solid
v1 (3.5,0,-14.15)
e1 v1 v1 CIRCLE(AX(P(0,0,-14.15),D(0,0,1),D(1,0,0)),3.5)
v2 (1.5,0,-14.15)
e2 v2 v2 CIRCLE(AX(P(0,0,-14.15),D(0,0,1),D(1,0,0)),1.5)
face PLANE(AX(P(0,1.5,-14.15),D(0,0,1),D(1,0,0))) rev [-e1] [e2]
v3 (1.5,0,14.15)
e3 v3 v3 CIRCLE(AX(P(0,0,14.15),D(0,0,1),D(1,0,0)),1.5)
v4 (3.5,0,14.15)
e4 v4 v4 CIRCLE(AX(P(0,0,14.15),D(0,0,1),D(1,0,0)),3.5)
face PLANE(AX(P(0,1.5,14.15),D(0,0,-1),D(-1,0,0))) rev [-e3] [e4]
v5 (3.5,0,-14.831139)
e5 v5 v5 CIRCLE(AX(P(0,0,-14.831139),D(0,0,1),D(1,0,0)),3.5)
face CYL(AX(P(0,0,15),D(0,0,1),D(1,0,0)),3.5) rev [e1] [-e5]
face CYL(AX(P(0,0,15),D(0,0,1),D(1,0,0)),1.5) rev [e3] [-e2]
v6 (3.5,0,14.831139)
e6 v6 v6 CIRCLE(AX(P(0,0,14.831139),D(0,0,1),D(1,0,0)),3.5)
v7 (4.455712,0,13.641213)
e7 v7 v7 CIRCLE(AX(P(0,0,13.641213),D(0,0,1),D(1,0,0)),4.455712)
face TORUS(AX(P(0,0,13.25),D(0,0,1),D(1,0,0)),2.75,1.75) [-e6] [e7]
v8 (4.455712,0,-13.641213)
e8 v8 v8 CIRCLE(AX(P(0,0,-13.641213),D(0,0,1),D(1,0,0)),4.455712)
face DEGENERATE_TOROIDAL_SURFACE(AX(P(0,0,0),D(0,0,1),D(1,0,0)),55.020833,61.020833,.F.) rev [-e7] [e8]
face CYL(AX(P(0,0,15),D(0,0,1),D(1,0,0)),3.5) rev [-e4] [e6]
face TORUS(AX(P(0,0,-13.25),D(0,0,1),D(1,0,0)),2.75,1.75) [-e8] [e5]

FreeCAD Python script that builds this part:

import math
import FreeCAD as App
import Part
import Sketcher
from FreeCAD import Vector
Q = App.Units.Quantity

doc = App.newDocument("Part")
params = doc.addObject("Spreadsheet::Sheet", "Params")
for row, (alias, value) in enumerate([
    ("sketch1_width", "2 mm"),
    ("sketch1_radius", "1.75 mm"),
    ("sketch1_height", "28.3 mm"),
    ("revolution_angle", "360 deg"),
], start=1):
    params.set(f"A{row}", alias)
    params.set(f"B{row}", "=" + value)
    params.setAlias(f"B{row}", alias)

body = doc.addObject("PartDesign::Body", "Body")

sketch1 = doc.addObject("Sketcher::SketchObject", "Sketch")
body.addObject(sketch1)
sketch1.AttachmentSupport = (doc.YZ_Plane, [""])
sketch1.MapMode = "FlatFace"
sketch1.addGeometry([
    Part.LineSegment(Vector(1.5, 14.2, 0), Vector(1.5, -14.2, 0)),
    Part.LineSegment(Vector(1.5, -14.2, 0), Vector(3.5, -14.2, 0)),
    Part.LineSegment(Vector(3.5, -14.2, 0), Vector(3.5, -14.8, 0)),
    Part.ArcOfCircle(Part.Circle(Vector(2.8, -13.2, 0), Vector(0, 0, 1), 1.7), math.radians(-65), math.radians(-13)),
    Part.ArcOfCircle(Part.Circle(Vector(-55, 0, 0), Vector(0, 0, 1), 61), math.radians(-13), math.radians(13)),
    Part.ArcOfCircle(Part.Circle(Vector(2.8, 13.2, 0), Vector(0, 0, 1), 1.7), math.radians(13), math.radians(65)),
    Part.LineSegment(Vector(3.5, 14.8, 0), Vector(3.5, 14.2, 0)),
    Part.LineSegment(Vector(3.5, 14.2, 0), Vector(1.5, 14.2, 0)),
], False)
sketch1.addConstraint([
    Sketcher.Constraint("Coincident", 0, 2, 1, 1),
    Sketcher.Constraint("Coincident", 1, 2, 2, 1),
    Sketcher.Constraint("Coincident", 2, 2, 3, 1),
    Sketcher.Constraint("Tangent", 3, 2, 4, 1),
    Sketcher.Constraint("Tangent", 4, 2, 5, 1),
    Sketcher.Constraint("Coincident", 5, 2, 6, 1),
    Sketcher.Constraint("Coincident", 6, 2, 7, 1),
    Sketcher.Constraint("Coincident", 7, 2, 0, 1),
    Sketcher.Constraint("Vertical", 0),
    Sketcher.Constraint("Horizontal", 1),
    Sketcher.Constraint("Vertical", 2),
    Sketcher.Constraint("Vertical", 6),
    Sketcher.Constraint("Horizontal", 7),
    Sketcher.Constraint("Equal", 3, 5),
    Sketcher.Constraint("Symmetric", 3, 3, 5, 3, -1),
    Sketcher.Constraint("Symmetric", 1, 2, 6, 2, -1),
    Sketcher.Constraint("DistanceX", 1, 1, 1, 2, Q("2 mm")),
    Sketcher.Constraint("Radius", 3, Q("1.75 mm")),
    Sketcher.Constraint("DistanceY", 0, 2, 0, 1, Q("28.3 mm")),
    Sketcher.Constraint("DistanceX", -1, 1, 0, 2, Q("1.5 mm")),
    Sketcher.Constraint("DistanceY", 3, 3, 5, 3, Q("26.5 mm")),
    Sketcher.Constraint("DistanceX", -1, 1, 3, 3, Q("2.75 mm")),
    Sketcher.Constraint("Radius", 4, Q("61.020833 mm")),
])
sketch1.setExpression("Constraints[16]", "Params.sketch1_width")
sketch1.setExpression("Constraints[17]", "Params.sketch1_radius")
sketch1.setExpression("Constraints[18]", "Params.sketch1_height")
revolution = doc.addObject("PartDesign::Revolution", "Revolution")
body.addObject(revolution)
revolution.Profile = sketch1
revolution.ReferenceAxis = (sketch1, ["V_Axis"])
revolution.setExpression("Angle", "Params.revolution_angle")

doc.recompute()
